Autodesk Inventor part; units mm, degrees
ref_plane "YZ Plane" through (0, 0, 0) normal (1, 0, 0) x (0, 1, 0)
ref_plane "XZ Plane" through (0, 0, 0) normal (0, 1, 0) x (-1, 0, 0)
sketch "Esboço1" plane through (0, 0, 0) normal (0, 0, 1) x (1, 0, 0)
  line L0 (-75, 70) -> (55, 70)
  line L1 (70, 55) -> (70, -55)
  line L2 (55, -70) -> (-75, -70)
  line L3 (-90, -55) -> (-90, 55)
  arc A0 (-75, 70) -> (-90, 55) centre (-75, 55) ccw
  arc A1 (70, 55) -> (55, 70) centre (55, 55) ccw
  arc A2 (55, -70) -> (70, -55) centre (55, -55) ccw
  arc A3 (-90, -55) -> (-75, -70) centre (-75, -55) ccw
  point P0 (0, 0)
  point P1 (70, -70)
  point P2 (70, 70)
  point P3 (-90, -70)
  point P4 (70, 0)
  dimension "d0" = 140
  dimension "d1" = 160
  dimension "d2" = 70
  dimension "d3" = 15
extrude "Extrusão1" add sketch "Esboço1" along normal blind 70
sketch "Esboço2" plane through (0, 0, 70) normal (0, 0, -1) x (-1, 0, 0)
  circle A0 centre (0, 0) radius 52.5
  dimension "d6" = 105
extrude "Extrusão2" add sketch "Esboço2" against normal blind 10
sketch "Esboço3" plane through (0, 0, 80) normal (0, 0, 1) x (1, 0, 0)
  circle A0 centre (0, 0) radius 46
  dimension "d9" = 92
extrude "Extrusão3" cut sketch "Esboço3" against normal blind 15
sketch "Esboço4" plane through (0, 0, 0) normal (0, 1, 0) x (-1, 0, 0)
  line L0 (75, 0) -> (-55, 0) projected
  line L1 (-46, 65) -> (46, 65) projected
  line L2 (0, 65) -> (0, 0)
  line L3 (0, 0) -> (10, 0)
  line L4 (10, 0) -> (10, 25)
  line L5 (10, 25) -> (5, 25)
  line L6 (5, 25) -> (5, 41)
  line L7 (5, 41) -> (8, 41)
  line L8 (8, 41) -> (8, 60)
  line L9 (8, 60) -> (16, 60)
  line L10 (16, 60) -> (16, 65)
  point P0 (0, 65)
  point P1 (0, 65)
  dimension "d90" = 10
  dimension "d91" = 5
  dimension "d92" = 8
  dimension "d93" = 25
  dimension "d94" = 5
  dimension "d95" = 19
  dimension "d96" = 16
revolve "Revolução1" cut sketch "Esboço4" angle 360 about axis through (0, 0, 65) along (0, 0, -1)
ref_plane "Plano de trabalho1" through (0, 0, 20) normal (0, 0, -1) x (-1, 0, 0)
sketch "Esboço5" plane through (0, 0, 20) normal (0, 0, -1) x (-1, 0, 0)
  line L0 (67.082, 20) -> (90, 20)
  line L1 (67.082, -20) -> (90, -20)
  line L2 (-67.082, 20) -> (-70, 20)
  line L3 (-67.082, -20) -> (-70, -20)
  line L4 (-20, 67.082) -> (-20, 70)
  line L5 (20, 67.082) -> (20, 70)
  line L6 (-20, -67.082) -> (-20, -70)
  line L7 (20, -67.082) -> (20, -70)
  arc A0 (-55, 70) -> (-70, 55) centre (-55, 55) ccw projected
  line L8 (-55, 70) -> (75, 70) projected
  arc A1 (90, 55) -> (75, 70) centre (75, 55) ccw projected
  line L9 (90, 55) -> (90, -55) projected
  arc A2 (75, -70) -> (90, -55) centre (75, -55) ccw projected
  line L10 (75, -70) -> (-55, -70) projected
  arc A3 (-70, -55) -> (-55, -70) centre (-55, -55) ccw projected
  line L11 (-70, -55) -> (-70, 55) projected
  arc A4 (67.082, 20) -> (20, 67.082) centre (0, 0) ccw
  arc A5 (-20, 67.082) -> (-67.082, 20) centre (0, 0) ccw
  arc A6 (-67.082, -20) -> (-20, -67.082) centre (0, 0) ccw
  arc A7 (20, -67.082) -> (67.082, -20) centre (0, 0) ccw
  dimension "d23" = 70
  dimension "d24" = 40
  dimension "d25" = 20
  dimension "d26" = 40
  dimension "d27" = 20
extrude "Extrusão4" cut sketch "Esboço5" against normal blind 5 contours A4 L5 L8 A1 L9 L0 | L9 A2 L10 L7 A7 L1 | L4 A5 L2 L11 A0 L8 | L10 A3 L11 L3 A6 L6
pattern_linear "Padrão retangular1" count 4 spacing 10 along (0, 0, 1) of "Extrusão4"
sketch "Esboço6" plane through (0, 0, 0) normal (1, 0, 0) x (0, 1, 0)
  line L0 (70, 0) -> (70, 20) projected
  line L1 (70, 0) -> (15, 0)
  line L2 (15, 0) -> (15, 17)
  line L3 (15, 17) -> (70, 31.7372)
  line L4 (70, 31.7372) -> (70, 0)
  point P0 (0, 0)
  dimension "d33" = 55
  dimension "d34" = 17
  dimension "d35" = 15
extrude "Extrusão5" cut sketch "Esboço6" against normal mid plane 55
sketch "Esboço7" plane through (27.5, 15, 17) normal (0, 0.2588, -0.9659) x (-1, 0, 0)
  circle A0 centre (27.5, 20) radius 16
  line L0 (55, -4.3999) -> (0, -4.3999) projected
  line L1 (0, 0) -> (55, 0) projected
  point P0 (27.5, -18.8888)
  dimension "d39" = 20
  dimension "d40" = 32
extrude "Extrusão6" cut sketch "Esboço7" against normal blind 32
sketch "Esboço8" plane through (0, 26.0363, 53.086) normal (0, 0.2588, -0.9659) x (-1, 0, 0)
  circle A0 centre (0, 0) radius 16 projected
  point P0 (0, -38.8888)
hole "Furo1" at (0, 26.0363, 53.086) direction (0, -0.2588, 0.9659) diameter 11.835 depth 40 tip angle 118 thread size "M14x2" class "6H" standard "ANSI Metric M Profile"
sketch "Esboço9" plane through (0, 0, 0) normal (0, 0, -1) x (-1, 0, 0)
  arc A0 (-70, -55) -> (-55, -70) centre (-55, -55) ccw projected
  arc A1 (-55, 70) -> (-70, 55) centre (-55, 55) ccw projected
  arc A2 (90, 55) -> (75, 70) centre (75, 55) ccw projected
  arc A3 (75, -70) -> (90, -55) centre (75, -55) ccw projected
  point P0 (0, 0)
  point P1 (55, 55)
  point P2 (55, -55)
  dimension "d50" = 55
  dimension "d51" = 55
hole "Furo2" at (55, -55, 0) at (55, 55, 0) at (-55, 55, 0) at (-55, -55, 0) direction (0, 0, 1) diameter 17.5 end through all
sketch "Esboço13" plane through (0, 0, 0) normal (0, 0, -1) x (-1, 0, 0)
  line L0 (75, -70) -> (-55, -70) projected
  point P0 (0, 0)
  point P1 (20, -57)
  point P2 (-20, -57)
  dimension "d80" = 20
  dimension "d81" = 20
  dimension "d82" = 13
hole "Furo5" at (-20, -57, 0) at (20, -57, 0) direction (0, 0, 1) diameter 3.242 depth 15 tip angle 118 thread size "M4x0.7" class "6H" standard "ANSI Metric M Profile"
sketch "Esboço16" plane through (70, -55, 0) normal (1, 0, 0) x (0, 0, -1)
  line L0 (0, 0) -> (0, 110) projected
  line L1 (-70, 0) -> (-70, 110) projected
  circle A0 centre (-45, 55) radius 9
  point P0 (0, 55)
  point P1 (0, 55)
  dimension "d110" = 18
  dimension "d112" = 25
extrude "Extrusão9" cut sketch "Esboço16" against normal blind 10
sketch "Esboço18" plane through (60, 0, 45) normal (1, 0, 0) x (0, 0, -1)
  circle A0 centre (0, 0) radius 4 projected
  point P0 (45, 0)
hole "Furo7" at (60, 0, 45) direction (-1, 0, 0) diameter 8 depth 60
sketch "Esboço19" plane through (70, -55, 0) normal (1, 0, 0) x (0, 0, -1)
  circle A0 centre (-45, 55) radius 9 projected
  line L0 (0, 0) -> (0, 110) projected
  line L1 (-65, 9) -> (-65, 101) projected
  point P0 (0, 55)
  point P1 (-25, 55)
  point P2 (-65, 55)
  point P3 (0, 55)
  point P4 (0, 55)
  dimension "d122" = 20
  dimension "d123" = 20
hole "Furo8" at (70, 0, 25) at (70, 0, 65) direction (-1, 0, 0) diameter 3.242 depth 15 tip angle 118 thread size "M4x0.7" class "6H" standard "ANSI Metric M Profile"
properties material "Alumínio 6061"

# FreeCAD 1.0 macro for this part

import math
import FreeCAD as App
import Part
import Sketcher

V = App.Vector
Q = App.Units.Quantity

doc = App.newDocument("Part")
body = doc.addObject("PartDesign::Body", "Body")

# Sketch on XY plane
sketch1 = body.newObject("Sketcher::SketchObject", "Sketch")
sketch1.AttachmentSupport = (doc.getObject("XY_Plane"), [""])
sketch1.MapMode = "FlatFace"
sketch1.addGeometry([
    Part.LineSegment(V(55, 70, 0), V(-75, 70, 0)),  # 0
    Part.ArcOfCircle(Part.Circle(V(-75, 55, 0), V(0, 0, 1), 15), math.radians(90), math.radians(180)),  # 1
    Part.LineSegment(V(-90, 55, 0), V(-90, -55, 0)),  # 2
    Part.ArcOfCircle(Part.Circle(V(-75, -55, 0), V(0, 0, 1), 15), math.radians(180), math.radians(270)),  # 3
    Part.LineSegment(V(-75, -70, 0), V(55, -70, 0)),  # 4
    Part.ArcOfCircle(Part.Circle(V(55, -55, 0), V(0, 0, 1), 15), math.radians(-90), math.radians(0)),  # 5
    Part.LineSegment(V(70, -55, 0), V(70, 55, 0)),  # 6
    Part.ArcOfCircle(Part.Circle(V(55, 55, 0), V(0, 0, 1), 15), math.radians(0), math.radians(90)),  # 7
], False)
sketch1.addConstraint([
    Sketcher.Constraint("Tangent", 0, 2, 1, 1),
    Sketcher.Constraint("Tangent", 1, 2, 2, 1),
    Sketcher.Constraint("Tangent", 2, 2, 3, 1),
    Sketcher.Constraint("Tangent", 3, 2, 4, 1),
    Sketcher.Constraint("Tangent", 4, 2, 5, 1),
    Sketcher.Constraint("Tangent", 5, 2, 6, 1),
    Sketcher.Constraint("Tangent", 6, 2, 7, 1),
    Sketcher.Constraint("Tangent", 7, 2, 0, 1),
    Sketcher.Constraint("Horizontal", 0),
    Sketcher.Constraint("Vertical", 2),
    Sketcher.Constraint("Horizontal", 4),
    Sketcher.Constraint("Vertical", 6),
    Sketcher.Constraint("Equal", 1, 3),
    Sketcher.Constraint("Equal", 3, 5),
    Sketcher.Constraint("Equal", 5, 7),
    Sketcher.Constraint("Radius", 1, Q("15 mm")),
    Sketcher.Constraint("DistanceY", -1, 1, 0, 2, Q("70 mm")),
    Sketcher.Constraint("DistanceY", 3, 2, -1, 1, Q("70 mm")),
    Sketcher.Constraint("DistanceX", -1, 1, 5, 2, Q("70 mm")),
    Sketcher.Constraint("DistanceX", 0, 2, 0, 1, Q("130 mm")),
])
pad1 = body.newObject("PartDesign::Pad", "Pad")
pad1.Profile = sketch1
pad1.Length = 70

# Sketch on XY plane
sketch2 = body.newObject("Sketcher::SketchObject", "Sketch001")
sketch2.AttachmentSupport = (doc.getObject("XY_Plane"), [""])
sketch2.MapMode = "FlatFace"
sketch2.AttachmentOffset = App.Placement(V(0, 0, 70), App.Rotation())
sketch2.addGeometry(Part.Circle(V(0, 0, 0), V(0, 0, 1), 52.5), False)
sketch2.addConstraint([
    Sketcher.Constraint("Coincident", 0, 3, -1, 1),
    Sketcher.Constraint("Diameter", 0, Q("105 mm")),
])
pad2 = body.newObject("PartDesign::Pad", "Pad001")
pad2.Profile = sketch2
pad2.Length = 10

# Sketch on XY plane
sketch3 = body.newObject("Sketcher::SketchObject", "Sketch002")
sketch3.AttachmentSupport = (doc.getObject("XY_Plane"), [""])
sketch3.MapMode = "FlatFace"
sketch3.AttachmentOffset = App.Placement(V(0, 0, 80), App.Rotation())
sketch3.addGeometry(Part.Circle(V(0, 0, 0), V(0, 0, 1), 46), False)
sketch3.addConstraint([
    Sketcher.Constraint("Coincident", 0, 3, -1, 1),
    Sketcher.Constraint("Diameter", 0, Q("92 mm")),
])
pocket1 = body.newObject("PartDesign::Pocket", "Pocket")
pocket1.Profile = sketch3
pocket1.Length = 15

# Sketch on XZ plane
sketch4 = body.newObject("Sketcher::SketchObject", "Sketch003")
sketch4.AttachmentSupport = (doc.getObject("XZ_Plane"), [""])
sketch4.MapMode = "FlatFace"
sketch4.addGeometry([
    Part.LineSegment(V(0, 0, 0), V(-10, 0, 0)),  # 0
    Part.LineSegment(V(-10, 0, 0), V(-10, 25, 0)),  # 1
    Part.LineSegment(V(-10, 25, 0), V(-5, 25, 0)),  # 2
    Part.LineSegment(V(-5, 25, 0), V(-5, 41, 0)),  # 3
    Part.LineSegment(V(-5, 41, 0), V(-8, 41, 0)),  # 4
    Part.LineSegment(V(-8, 41, 0), V(-8, 60, 0)),  # 5
    Part.LineSegment(V(-8, 60, 0), V(-16, 60, 0)),  # 6
    Part.LineSegment(V(-16, 60, 0), V(-16, 65, 0)),  # 7
    Part.LineSegment(V(-16, 65, 0), V(0, 65, 0)),  # 8
    Part.LineSegment(V(0, 65, 0), V(0, 0, 0)),  # 9
], False)
sketch4.addConstraint([
    Sketcher.Constraint("Coincident", 0, 2, 1, 1),
    Sketcher.Constraint("Coincident", 1, 2, 2, 1),
    Sketcher.Constraint("Coincident", 2, 2, 3, 1),
    Sketcher.Constraint("Coincident", 3, 2, 4, 1),
    Sketcher.Constraint("Coincident", 4, 2, 5, 1),
    Sketcher.Constraint("Coincident", 5, 2, 6, 1),
    Sketcher.Constraint("Coincident", 6, 2, 7, 1),
    Sketcher.Constraint("Coincident", 7, 2, 8, 1),
    Sketcher.Constraint("Coincident", 8, 2, 9, 1),
    Sketcher.Constraint("Coincident", 9, 2, 0, 1),
    Sketcher.Constraint("Horizontal", 0),
    Sketcher.Constraint("Vertical", 1),
    Sketcher.Constraint("Horizontal", 2),
    Sketcher.Constraint("Vertical", 3),
    Sketcher.Constraint("Horizontal", 4),
    Sketcher.Constraint("Vertical", 5),
    Sketcher.Constraint("Horizontal", 6),
    Sketcher.Constraint("Vertical", 7),
    Sketcher.Constraint("Horizontal", 8),
    Sketcher.Constraint("Vertical", 9),
    Sketcher.Constraint("Coincident", 9, 2, -1, 1),
    Sketcher.Constraint("Equal", 8, 3),
    Sketcher.Constraint("Equal", 2, 7),
    Sketcher.Constraint("DistanceX", 0, 2, 0, 1, Q("10 mm")),
    Sketcher.Constraint("DistanceX", 2, 1, 2, 2, Q("5 mm")),
    Sketcher.Constraint("DistanceX", 6, 2, 6, 1, Q("8 mm")),
    Sketcher.Constraint("DistanceX", 8, 1, 8, 2, Q("16 mm")),
    Sketcher.Constraint("DistanceY", 1, 1, 1, 2, Q("25 mm")),
    Sketcher.Constraint("DistanceY", 5, 1, 5, 2, Q("19 mm")),
])
groove = body.newObject("PartDesign::Groove", "Groove")
groove.Profile = sketch4
groove.ReferenceAxis = (sketch4, ["V_Axis"])
groove.Angle = 360

# Sketch on XY plane
sketch5 = body.newObject("Sketcher::SketchObject", "Sketch004")
sketch5.AttachmentSupport = (doc.getObject("XY_Plane"), [""])
sketch5.MapMode = "FlatFace"
sketch5.AttachmentOffset = App.Placement(V(0, 0, 20), App.Rotation())
sketch5.addGeometry([
    Part.ArcOfCircle(Part.Circle(V(0, 0, 0), V(0, 0, 1), 69.999962), math.radians(106.601559), math.radians(163.398441)),  # 0
    Part.LineSegment(V(-67.082, 20, 0), V(-90, 20, 0)),  # 1
    Part.LineSegment(V(-90, 20, 0), V(-90, 55, 0)),  # 2
    Part.ArcOfCircle(Part.Circle(V(-75, 55, 0), V(0, 0, 1), 15), math.radians(90), math.radians(180)),  # 3
    Part.LineSegment(V(-75, 70, 0), V(-20, 70, 0)),  # 4
    Part.LineSegment(V(-20, 70, 0), V(-20, 67.082, 0)),  # 5
    Part.LineSegment(V(-90, -55, 0), V(-90, -20, 0)),  # 6
    Part.LineSegment(V(-90, -20, 0), V(-67.082, -20, 0)),  # 7
    Part.ArcOfCircle(Part.Circle(V(0, 0, 0), V(0, 0, 1), 69.999962), math.radians(-163.398441), math.radians(-106.601559)),  # 8
    Part.LineSegment(V(-20, -67.082, 0), V(-20, -70, 0)),  # 9
    Part.LineSegment(V(-20, -70, 0), V(-75, -70, 0)),  # 10
    Part.ArcOfCircle(Part.Circle(V(-75, -55, 0), V(0, 0, 1), 15), math.radians(180), math.radians(270)),  # 11
    Part.LineSegment(V(20, 67.082, 0), V(20, 70, 0)),  # 12
    Part.LineSegment(V(20, 70, 0), V(55, 70, 0)),  # 13
    Part.ArcOfCircle(Part.Circle(V(55, 55, 0), V(0, 0, 1), 15), math.radians(0), math.radians(90)),  # 14
    Part.LineSegment(V(70, 55, 0), V(70, 20, 0)),  # 15
    Part.LineSegment(V(70, 20, 0), V(67.082, 20, 0)),  # 16
    Part.ArcOfCircle(Part.Circle(V(0, 0, 0), V(0, 0, 1), 69.999962), math.radians(16.601559), math.radians(73.398441)),  # 17
    Part.LineSegment(V(55, -70, 0), V(20, -70, 0)),  # 18
    Part.LineSegment(V(20, -70, 0), V(20, -67.082, 0)),  # 19
    Part.ArcOfCircle(Part.Circle(V(0, 0, 0), V(0, 0, 1), 69.999962), math.radians(-73.398441), math.radians(-16.601559)),  # 20
    Part.LineSegment(V(67.082, -20, 0), V(70, -20, 0)),  # 21
    Part.LineSegment(V(70, -20, 0), V(70, -55, 0)),  # 22
    Part.ArcOfCircle(Part.Circle(V(55, -55, 0), V(0, 0, 1), 15), math.radians(-90), math.radians(0)),  # 23
], False)
sketch5.addConstraint([
    Sketcher.Constraint("Coincident", 0, 2, 1, 1),
    Sketcher.Constraint("Coincident", 1, 2, 2, 1),
    Sketcher.Constraint("Tangent", 2, 2, 3, 2),
    Sketcher.Constraint("Tangent", 3, 1, 4, 1),
    Sketcher.Constraint("Coincident", 4, 2, 5, 1),
    Sketcher.Constraint("Coincident", 5, 2, 0, 1),
    Sketcher.Constraint("Coincident", 6, 2, 7, 1),
    Sketcher.Constraint("Coincident", 7, 2, 8, 1),
    Sketcher.Constraint("Coincident", 8, 2, 9, 1),
    Sketcher.Constraint("Coincident", 9, 2, 10, 1),
    Sketcher.Constraint("Tangent", 10, 2, 11, 2),
    Sketcher.Constraint("Tangent", 11, 1, 6, 1),
    Sketcher.Constraint("Coincident", 12, 2, 13, 1),
    Sketcher.Constraint("Tangent", 13, 2, 14, 2),
    Sketcher.Constraint("Tangent", 14, 1, 15, 1),
    Sketcher.Constraint("Coincident", 15, 2, 16, 1),
    Sketcher.Constraint("Coincident", 16, 2, 17, 1),
    Sketcher.Constraint("Coincident", 17, 2, 12, 1),
    Sketcher.Constraint("Coincident", 18, 2, 19, 1),
    Sketcher.Constraint("Coincident", 19, 2, 20, 1),
    Sketcher.Constraint("Coincident", 20, 2, 21, 1),
    Sketcher.Constraint("Coincident", 21, 2, 22, 1),
    Sketcher.Constraint("Tangent", 22, 2, 23, 2),
    Sketcher.Constraint("Tangent", 23, 1, 18, 1),
    Sketcher.Constraint("Horizontal", 1),
    Sketcher.Constraint("Vertical", 2),
    Sketcher.Constraint("Horizontal", 4),
    Sketcher.Constraint("Vertical", 5),
    Sketcher.Constraint("Vertical", 6),
    Sketcher.Constraint("Horizontal", 7),
    Sketcher.Constraint("Vertical", 9),
    Sketcher.Constraint("Horizontal", 10),
    Sketcher.Constraint("Vertical", 12),
    Sketcher.Constraint("Horizontal", 13),
    Sketcher.Constraint("Vertical", 15),
    Sketcher.Constraint("Horizontal", 16),
    Sketcher.Constraint("Horizontal", 18),
    Sketcher.Constraint("Vertical", 19),
    Sketcher.Constraint("Horizontal", 21),
    Sketcher.Constraint("Vertical", 22),
    Sketcher.Constraint("Coincident", 0, 3, -1, 1),
    Sketcher.Constraint("Coincident", 8, 3, -1, 1),
    Sketcher.Constraint("Coincident", 17, 3, -1, 1),
    Sketcher.Constraint("Coincident", 20, 3, -1, 1),
    Sketcher.Constraint("Equal", 0, 8),
    Sketcher.Constraint("Equal", 3, 11),
    Sketcher.Constraint("Equal", 11, 14),
    Sketcher.Constraint("Equal", 8, 17),
    Sketcher.Constraint("Equal", 17, 20),
    Sketcher.Constraint("Equal", 14, 23),
    Sketcher.Constraint("Symmetric", 9, 2, 12, 2, -1, 1),
    Sketcher.Constraint("Symmetric", 4, 2, 18, 2, -1, 1),
    Sketcher.Constraint("Symmetric", 4, 2, 12, 2, -2),
    Sketcher.Constraint("Symmetric", 1, 2, 6, 2, -1),
    Sketcher.Constraint("Symmetric", 15, 2, 21, 2, -1),
    Sketcher.Constraint("Horizontal", 1, 2, 15, 2),
    Sketcher.Constraint("Equal", 18, 2),
    Sketcher.Constraint("Equal", 21, 5),
    Sketcher.Constraint("Radius", 0, Q("70 mm")),
    Sketcher.Constraint("DistanceY", -1, 1, 0, 2, Q("20 mm")),
    Sketcher.Constraint("DistanceY", -1, 1, 3, 1, Q("70 mm")),
    Sketcher.Constraint("Radius", 3, Q("15 mm")),
    Sketcher.Constraint("DistanceX", 2, 2, 4, 2, Q("70 mm")),
])
pocket2 = body.newObject("PartDesign::Pocket", "Pocket001")
pocket2.Profile = sketch5
pocket2.Length = 5
pocket2.Reversed = True
doc.recompute()

linearpattern = body.newObject("PartDesign::LinearPattern", "LinearPattern")
linearpattern.Originals = [pocket2]
linearpattern.Direction = (doc.getObject("Z_Axis"), [""])
linearpattern.Mode = "offset"
linearpattern.Offset = 10
linearpattern.Occurrences = 4
body.Tip = linearpattern

# Sketch on YZ plane
sketch6 = body.newObject("Sketcher::SketchObject", "Sketch005")
sketch6.AttachmentSupport = (doc.getObject("YZ_Plane"), [""])
sketch6.MapMode = "FlatFace"
sketch6.addGeometry([
    Part.LineSegment(V(15, 0, 0), V(70, 0, 0)),
    Part.LineSegment(V(70, 0, 0), V(70, 31.7372, 0)),
    Part.LineSegment(V(70, 31.7372, 0), V(15, 17, 0)),
    Part.LineSegment(V(15, 17, 0), V(15, 0, 0)),
], False)
sketch6.addConstraint([
    Sketcher.Constraint("Coincident", 0, 2, 1, 1),
    Sketcher.Constraint("Coincident", 1, 2, 2, 1),
    Sketcher.Constraint("Coincident", 2, 2, 3, 1),
    Sketcher.Constraint("Coincident", 3, 2, 0, 1),
    Sketcher.Constraint("Horizontal", 0),
    Sketcher.Constraint("Vertical", 1),
    Sketcher.Constraint("Vertical", 3),
    Sketcher.Constraint("PointOnObject", 0, 2, -1),
    Sketcher.Constraint("DistanceX", 0, 1, 0, 2, Q("55 mm")),
    Sketcher.Constraint("DistanceY", 3, 2, 3, 1, Q("17 mm")),
    Sketcher.Constraint("DistanceX", -1, 1, 2, 2, Q("15 mm")),
    Sketcher.Constraint("Angle", 2, Q("-165 deg")),
])
pocket3 = body.newObject("PartDesign::Pocket", "Pocket002")
pocket3.Profile = sketch6
pocket3.Length = 55
pocket3.Midplane = True

# Sketch on an angled plane
sketch7 = body.newObject("Sketcher::SketchObject", "Sketch006")
sketch7.Placement = App.Placement(V(27.5, 15, 17), App.Rotation(V(-1, 0, 0), V(0, 0.965925826, 0.258819045), V(0, 0.258819045, -0.965925826), "ZXY"))
sketch7.addGeometry(Part.Circle(V(27.5, 20, 0), V(0, 0, 1), 16), False)
sketch7.addConstraint([
    Sketcher.Constraint("Diameter", 0, Q("32 mm")),
    Sketcher.Constraint("DistanceY", -1, 1, 0, 3, Q("20 mm")),
    Sketcher.Constraint("DistanceX", -1, 1, 0, 3, Q("27.5 mm")),
])
pocket4 = body.newObject("PartDesign::Pocket", "Pocket003")
pocket4.Profile = sketch7
pocket4.Length = 32

# Sketch on an angled plane
sketch8 = body.newObject("Sketcher::SketchObject", "Sketch007")
sketch8.Placement = App.Placement(V(0, -11.527399, 43.020837), App.Rotation(V(0, 0.965925826, 0.258819045), V(0.999999999, 0, 0), V(0, 0.258819045, -0.965925826), "ZXY"))
sketch8.addGeometry(Part.Circle(V(38.888802, 0, 0), V(0, 0, 1), 5.9175), False)
sketch8.addConstraint([
    Sketcher.Constraint("PointOnObject", 0, 3, -1),
    Sketcher.Constraint("Diameter", 0, Q("11.835 mm")),
    Sketcher.Constraint("DistanceX", -1, 1, 0, 3, Q("38.8888 mm")),
])
doc.recompute()
hole = body.newObject("PartDesign::Hole", "Hole")
hole.Profile = sketch8
hole.ThreadType = "None"
hole.Diameter = 11.835
hole.DepthType = "Dimension"
hole.Depth = 40
hole.DrillPoint = "Angled"
hole.DrillPointAngle = 118

# Sketch on XY plane
sketch9 = body.newObject("Sketcher::SketchObject", "Sketch008")
sketch9.AttachmentSupport = (doc.getObject("XY_Plane"), [""])
sketch9.MapMode = "FlatFace"
sketch9.addGeometry([
    Part.Circle(V(55, -55, 0), V(0, 0, 1), 8.75),
    Part.Circle(V(55, 55, 0), V(0, 0, 1), 8.75),
    Part.Circle(V(-55, 55, 0), V(0, 0, 1), 8.75),
    Part.Circle(V(-55, -55, 0), V(0, 0, 1), 8.75),
], False)
sketch9.addConstraint([
    Sketcher.Constraint("Equal", 0, 1),
    Sketcher.Constraint("Equal", 1, 2),
    Sketcher.Constraint("Equal", 2, 3),
    Sketcher.Constraint("Symmetric", 0, 3, 2, 3, -1, 1),
    Sketcher.Constraint("Symmetric", 1, 3, 3, 3, -1, 1),
    Sketcher.Constraint("Symmetric", 1, 3, 2, 3, -2),
    Sketcher.Constraint("Diameter", 0, Q("17.5 mm")),
    Sketcher.Constraint("DistanceX", -1, 1, 0, 3, Q("55 mm")),
    Sketcher.Constraint("DistanceY", 0, 3, -1, 1, Q("55 mm")),
])
doc.recompute()
hole2 = body.newObject("PartDesign::Hole", "Hole001")
hole2.Profile = sketch9
hole2.ThreadType = "None"
hole2.Diameter = 17.5
hole2.DepthType = "ThroughAll"
hole2.Reversed = True

# Sketch on XY plane
sketch10 = body.newObject("Sketcher::SketchObject", "Sketch009")
sketch10.AttachmentSupport = (doc.getObject("XY_Plane"), [""])
sketch10.MapMode = "FlatFace"
sketch10.addGeometry([
    Part.Circle(V(-20, -57, 0), V(0, 0, 1), 1.621),
    Part.Circle(V(20, -57, 0), V(0, 0, 1), 1.621),
], False)
sketch10.addConstraint([
    Sketcher.Constraint("Equal", 0, 1),
    Sketcher.Constraint("Symmetric", 0, 3, 1, 3, -2),
    Sketcher.Constraint("Diameter", 0, Q("3.242 mm")),
    Sketcher.Constraint("DistanceX", 0, 3, -1, 1, Q("20 mm")),
    Sketcher.Constraint("DistanceY", 0, 3, -1, 1, Q("57 mm")),
])
doc.recompute()
hole3 = body.newObject("PartDesign::Hole", "Hole002")
hole3.Profile = sketch10
hole3.ThreadType = "None"
hole3.Diameter = 3.242
hole3.DepthType = "Dimension"
hole3.Depth = 15
hole3.DrillPoint = "Angled"
hole3.DrillPointAngle = 118
hole3.Reversed = True

# Sketch on YZ plane
sketch11 = body.newObject("Sketcher::SketchObject", "Sketch010")
sketch11.AttachmentSupport = (doc.getObject("YZ_Plane"), [""])
sketch11.MapMode = "FlatFace"
sketch11.AttachmentOffset = App.Placement(V(0, 0, 70), App.Rotation())
sketch11.addGeometry(Part.Circle(V(0, 45, 0), V(0, 0, 1), 9), False)
sketch11.addConstraint([
    Sketcher.Constraint("PointOnObject", 0, 3, -2),
    Sketcher.Constraint("Diameter", 0, Q("18 mm")),
    Sketcher.Constraint("DistanceY", -1, 1, 0, 3, Q("45 mm")),
])
pocket5 = body.newObject("PartDesign::Pocket", "Pocket004")
pocket5.Profile = sketch11
pocket5.Length = 10

# Sketch on YZ plane
sketch12 = body.newObject("Sketcher::SketchObject", "Sketch011")
sketch12.AttachmentSupport = (doc.getObject("YZ_Plane"), [""])
sketch12.MapMode = "FlatFace"
sketch12.AttachmentOffset = App.Placement(V(0, 0, 60), App.Rotation())
sketch12.addGeometry(Part.Circle(V(0, 45, 0), V(0, 0, 1), 4), False)
sketch12.addConstraint([
    Sketcher.Constraint("PointOnObject", 0, 3, -2),
    Sketcher.Constraint("Diameter", 0, Q("8 mm")),
    Sketcher.Constraint("DistanceY", -1, 1, 0, 3, Q("45 mm")),
])
doc.recompute()
hole4 = body.newObject("PartDesign::Hole", "Hole003")
hole4.Profile = sketch12
hole4.ThreadType = "None"
hole4.Diameter = 8
hole4.DepthType = "Dimension"
hole4.Depth = 60
hole4.DrillPoint = "Flat"

# Sketch on YZ plane
sketch13 = body.newObject("Sketcher::SketchObject", "Sketch012")
sketch13.AttachmentSupport = (doc.getObject("YZ_Plane"), [""])
sketch13.MapMode = "FlatFace"
sketch13.AttachmentOffset = App.Placement(V(0, 0, 70), App.Rotation())
sketch13.addGeometry([
    Part.Circle(V(0, 25, 0), V(0, 0, 1), 1.621),
    Part.Circle(V(0, 65, 0), V(0, 0, 1), 1.621),
], False)
sketch13.addConstraint([
    Sketcher.Constraint("Equal", 0, 1),
    Sketcher.Constraint("PointOnObject", 0, 3, -2),
    Sketcher.Constraint("PointOnObject", 1, 3, -2),
    Sketcher.Constraint("Diameter", 0, Q("3.242 mm")),
    Sketcher.Constraint("DistanceY", -1, 1, 0, 3, Q("25 mm")),
    Sketcher.Constraint("DistanceY", -1, 1, 1, 3, Q("65 mm")),
])
doc.recompute()
hole5 = body.newObject("PartDesign::Hole", "Hole004")
hole5.Profile = sketch13
hole5.ThreadType = "None"
hole5.Diameter = 3.242
hole5.DepthType = "Dimension"
hole5.Depth = 15
hole5.DrillPoint = "Angled"
hole5.DrillPointAngle = 118

doc.recompute()
